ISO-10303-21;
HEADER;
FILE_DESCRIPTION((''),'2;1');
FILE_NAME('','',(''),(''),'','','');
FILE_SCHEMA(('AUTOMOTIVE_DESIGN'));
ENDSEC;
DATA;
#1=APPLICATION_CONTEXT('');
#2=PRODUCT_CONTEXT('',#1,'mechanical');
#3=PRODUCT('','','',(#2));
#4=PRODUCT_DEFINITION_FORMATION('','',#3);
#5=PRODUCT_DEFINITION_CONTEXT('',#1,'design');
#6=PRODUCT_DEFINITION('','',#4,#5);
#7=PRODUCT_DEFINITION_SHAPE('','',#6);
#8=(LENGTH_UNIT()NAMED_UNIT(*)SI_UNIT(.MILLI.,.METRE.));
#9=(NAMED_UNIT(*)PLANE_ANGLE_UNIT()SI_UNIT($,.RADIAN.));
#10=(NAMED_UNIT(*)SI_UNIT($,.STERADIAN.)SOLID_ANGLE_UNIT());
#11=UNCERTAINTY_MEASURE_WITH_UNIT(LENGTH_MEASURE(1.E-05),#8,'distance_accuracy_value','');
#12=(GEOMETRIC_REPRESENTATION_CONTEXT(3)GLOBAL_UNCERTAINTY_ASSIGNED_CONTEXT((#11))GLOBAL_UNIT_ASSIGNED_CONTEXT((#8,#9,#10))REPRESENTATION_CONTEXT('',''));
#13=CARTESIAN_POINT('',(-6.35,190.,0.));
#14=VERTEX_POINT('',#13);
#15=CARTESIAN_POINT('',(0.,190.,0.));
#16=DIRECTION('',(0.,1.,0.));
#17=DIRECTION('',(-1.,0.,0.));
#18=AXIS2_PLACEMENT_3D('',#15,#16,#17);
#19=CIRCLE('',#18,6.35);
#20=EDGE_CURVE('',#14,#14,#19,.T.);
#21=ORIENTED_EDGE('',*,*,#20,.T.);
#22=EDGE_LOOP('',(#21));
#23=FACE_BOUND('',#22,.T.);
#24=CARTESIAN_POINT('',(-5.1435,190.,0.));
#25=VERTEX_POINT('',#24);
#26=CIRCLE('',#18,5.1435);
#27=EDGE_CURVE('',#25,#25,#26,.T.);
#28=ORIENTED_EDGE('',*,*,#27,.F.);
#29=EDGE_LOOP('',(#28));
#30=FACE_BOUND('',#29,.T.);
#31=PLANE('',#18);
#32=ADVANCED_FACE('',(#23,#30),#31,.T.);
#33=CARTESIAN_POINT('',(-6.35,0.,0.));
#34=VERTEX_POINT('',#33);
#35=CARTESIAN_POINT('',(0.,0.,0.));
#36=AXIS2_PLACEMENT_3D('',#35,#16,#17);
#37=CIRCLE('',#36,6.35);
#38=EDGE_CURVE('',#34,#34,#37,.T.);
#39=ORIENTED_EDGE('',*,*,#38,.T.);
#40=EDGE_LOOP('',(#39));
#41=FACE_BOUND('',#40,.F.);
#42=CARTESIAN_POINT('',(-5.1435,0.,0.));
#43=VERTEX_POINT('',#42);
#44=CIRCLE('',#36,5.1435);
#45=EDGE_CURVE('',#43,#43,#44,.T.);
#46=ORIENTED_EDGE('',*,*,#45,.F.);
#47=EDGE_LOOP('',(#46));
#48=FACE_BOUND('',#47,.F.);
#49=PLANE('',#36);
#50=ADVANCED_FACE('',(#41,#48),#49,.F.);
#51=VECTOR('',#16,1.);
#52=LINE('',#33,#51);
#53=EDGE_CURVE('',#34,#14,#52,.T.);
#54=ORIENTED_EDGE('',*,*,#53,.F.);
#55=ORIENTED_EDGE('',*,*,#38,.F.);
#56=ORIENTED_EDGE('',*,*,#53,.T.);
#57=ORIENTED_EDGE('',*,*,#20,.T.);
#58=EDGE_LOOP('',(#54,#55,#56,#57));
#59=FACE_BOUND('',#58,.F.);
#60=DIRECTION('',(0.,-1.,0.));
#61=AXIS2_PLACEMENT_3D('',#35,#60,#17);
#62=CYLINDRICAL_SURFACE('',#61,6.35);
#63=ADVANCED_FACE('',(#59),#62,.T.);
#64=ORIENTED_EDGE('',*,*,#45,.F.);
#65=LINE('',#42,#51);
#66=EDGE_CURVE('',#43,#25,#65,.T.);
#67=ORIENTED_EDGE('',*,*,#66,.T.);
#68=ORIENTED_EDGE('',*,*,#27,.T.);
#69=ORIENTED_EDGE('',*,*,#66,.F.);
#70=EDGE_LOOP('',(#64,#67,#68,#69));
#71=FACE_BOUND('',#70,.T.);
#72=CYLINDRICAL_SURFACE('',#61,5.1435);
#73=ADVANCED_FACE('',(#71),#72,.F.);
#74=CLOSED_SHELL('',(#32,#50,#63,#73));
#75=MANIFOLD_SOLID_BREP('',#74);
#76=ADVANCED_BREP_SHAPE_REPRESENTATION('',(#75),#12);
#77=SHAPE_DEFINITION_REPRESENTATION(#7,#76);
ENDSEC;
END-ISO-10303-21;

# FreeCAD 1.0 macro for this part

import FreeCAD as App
import Part
import Sketcher

V = App.Vector
Q = App.Units.Quantity

doc = App.newDocument("Part")
body = doc.addObject("PartDesign::Body", "Body")

# Sketch on XZ plane
sketch1 = body.newObject("Sketcher::SketchObject", "Sketch")
sketch1.AttachmentSupport = (doc.getObject("XZ_Plane"), [""])
sketch1.MapMode = "FlatFace"
sketch1.addGeometry([
    Part.Circle(V(0, 0, 0), V(0, 0, 1), 6.35),
    Part.Circle(V(0, 0, 0), V(0, 0, 1), 5.1435),
], False)
sketch1.addConstraint([
    Sketcher.Constraint("Coincident", 0, 3, -1, 1),
    Sketcher.Constraint("Coincident", 1, 3, -1, 1),
    Sketcher.Constraint("Diameter", 0, Q("0.5 in")),
    Sketcher.Constraint("Diameter", 1, Q("0.405 in")),
])
pad1 = body.newObject("PartDesign::Pad", "Pad")
pad1.Profile = sketch1
pad1.Length = 190
pad1.Reversed = True

doc.recompute()
